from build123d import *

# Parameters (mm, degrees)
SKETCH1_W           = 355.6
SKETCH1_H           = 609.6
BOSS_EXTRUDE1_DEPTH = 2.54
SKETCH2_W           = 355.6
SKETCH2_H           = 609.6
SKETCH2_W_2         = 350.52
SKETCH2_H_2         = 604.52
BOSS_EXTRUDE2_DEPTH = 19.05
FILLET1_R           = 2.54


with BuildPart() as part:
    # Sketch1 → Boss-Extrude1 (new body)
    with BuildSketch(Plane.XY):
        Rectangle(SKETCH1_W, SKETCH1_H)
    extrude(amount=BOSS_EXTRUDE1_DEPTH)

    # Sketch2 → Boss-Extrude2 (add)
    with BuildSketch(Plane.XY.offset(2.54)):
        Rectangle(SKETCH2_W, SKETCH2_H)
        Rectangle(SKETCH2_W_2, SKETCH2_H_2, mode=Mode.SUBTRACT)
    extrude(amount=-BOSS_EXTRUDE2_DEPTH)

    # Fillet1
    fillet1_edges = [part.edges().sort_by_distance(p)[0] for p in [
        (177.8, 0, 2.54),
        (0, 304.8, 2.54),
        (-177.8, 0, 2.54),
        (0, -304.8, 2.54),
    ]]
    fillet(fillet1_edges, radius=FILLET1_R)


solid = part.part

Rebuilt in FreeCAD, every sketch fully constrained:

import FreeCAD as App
import Part
import Sketcher
Q = App.Units.Quantity


def edges_at(feature, points):
    """Names of the edges that pass closest to the given points."""
    edges = feature.Shape.Edges
    near = lambda p: min(range(len(edges)), key=lambda i: edges[i].distToShape(Part.Vertex(*p))[0])
    return sorted({f"Edge{near(p) + 1}" for p in points})

doc = App.newDocument("Part")
body = doc.addObject("PartDesign::Body", "Body")

# Sketch on XY plane
sketch1 = body.newObject("Sketcher::SketchObject", "Sketch")
sketch1.AttachmentSupport = (doc.getObject("XY_Plane"), [""])
sketch1.MapMode = "FlatFace"
sketch1.addGeometry([
    Part.LineSegment(App.Vector(-178, 305, 0), App.Vector(-178, -305, 0)),
    Part.LineSegment(App.Vector(-178, -305, 0), App.Vector(178, -305, 0)),
    Part.LineSegment(App.Vector(178, -305, 0), App.Vector(178, 305, 0)),
    Part.LineSegment(App.Vector(178, 305, 0), App.Vector(-178, 305, 0)),
], False)
sketch1.addConstraint([
    Sketcher.Constraint("Coincident", 0, 2, 1, 1),
    Sketcher.Constraint("Coincident", 1, 2, 2, 1),
    Sketcher.Constraint("Coincident", 2, 2, 3, 1),
    Sketcher.Constraint("Coincident", 3, 2, 0, 1),
    Sketcher.Constraint("Vertical", 0),
    Sketcher.Constraint("Horizontal", 1),
    Sketcher.Constraint("Vertical", 2),
    Sketcher.Constraint("Horizontal", 3),
    Sketcher.Constraint("Symmetric", 0, 2, 2, 2, -1, 1),
    Sketcher.Constraint("DistanceX", 1, 1, 1, 2, Q("14 in")),
    Sketcher.Constraint("DistanceY", 0, 2, 0, 1, Q("24 in")),
])
pad1 = body.newObject("PartDesign::Pad", "Pad")
pad1.Profile = sketch1
pad1.Length = Q("0.1 in")

# Sketch on XY plane
sketch2 = body.newObject("Sketcher::SketchObject", "Sketch001")
sketch2.AttachmentSupport = (doc.getObject("XY_Plane"), [""])
sketch2.MapMode = "FlatFace"
sketch2.AttachmentOffset = App.Placement(App.Vector(0, 0, 0.1 * 25.4), App.Rotation())
sketch2.addGeometry([
    Part.LineSegment(App.Vector(-178, 305, 0), App.Vector(-178, -305, 0)),  # 0
    Part.LineSegment(App.Vector(-178, -305, 0), App.Vector(178, -305, 0)),  # 1
    Part.LineSegment(App.Vector(178, -305, 0), App.Vector(178, 305, 0)),  # 2
    Part.LineSegment(App.Vector(178, 305, 0), App.Vector(-178, 305, 0)),  # 3
    Part.LineSegment(App.Vector(175, -302, 0), App.Vector(-175, -302, 0)),  # 4
    Part.LineSegment(App.Vector(-175, -302, 0), App.Vector(-175, 302, 0)),  # 5
    Part.LineSegment(App.Vector(-175, 302, 0), App.Vector(175, 302, 0)),  # 6
    Part.LineSegment(App.Vector(175, 302, 0), App.Vector(175, -302, 0)),  # 7
], False)
sketch2.addConstraint([
    Sketcher.Constraint("Coincident", 0, 2, 1, 1),
    Sketcher.Constraint("Coincident", 1, 2, 2, 1),
    Sketcher.Constraint("Coincident", 2, 2, 3, 1),
    Sketcher.Constraint("Coincident", 3, 2, 0, 1),
    Sketcher.Constraint("Coincident", 4, 2, 5, 1),
    Sketcher.Constraint("Coincident", 5, 2, 6, 1),
    Sketcher.Constraint("Coincident", 6, 2, 7, 1),
    Sketcher.Constraint("Coincident", 7, 2, 4, 1),
    Sketcher.Constraint("Vertical", 0),
    Sketcher.Constraint("Horizontal", 1),
    Sketcher.Constraint("Vertical", 2),
    Sketcher.Constraint("Horizontal", 3),
    Sketcher.Constraint("Horizontal", 4),
    Sketcher.Constraint("Vertical", 5),
    Sketcher.Constraint("Horizontal", 6),
    Sketcher.Constraint("Vertical", 7),
    Sketcher.Constraint("Symmetric", 0, 2, 2, 2, -1, 1),
    Sketcher.Constraint("Symmetric", 4, 2, 6, 2, -1, 1),
    Sketcher.Constraint("DistanceX", 1, 1, 1, 2, Q("14 in")),
    Sketcher.Constraint("DistanceY", 0, 2, 0, 1, Q("24 in")),
    Sketcher.Constraint("DistanceX", 4, 2, 4, 1, Q("13.8 in")),
    Sketcher.Constraint("DistanceY", 5, 1, 5, 2, Q("23.8 in")),
])
pad2 = body.newObject("PartDesign::Pad", "Pad001")
pad2.Profile = sketch2
pad2.Length = Q("0.75 in")
pad2.Reversed = True
doc.recompute()

fillet = body.newObject("PartDesign::Fillet", "Fillet")
fillet.Base = (pad2, edges_at(pad2, [
    (177.8, 0, 2.54),
    (0, 304.8, 2.54),
    (-177.8, 0, 2.54),
    (0, -304.8, 2.54),
]))
fillet.Radius = Q("0.1 in")

doc.recompute()
